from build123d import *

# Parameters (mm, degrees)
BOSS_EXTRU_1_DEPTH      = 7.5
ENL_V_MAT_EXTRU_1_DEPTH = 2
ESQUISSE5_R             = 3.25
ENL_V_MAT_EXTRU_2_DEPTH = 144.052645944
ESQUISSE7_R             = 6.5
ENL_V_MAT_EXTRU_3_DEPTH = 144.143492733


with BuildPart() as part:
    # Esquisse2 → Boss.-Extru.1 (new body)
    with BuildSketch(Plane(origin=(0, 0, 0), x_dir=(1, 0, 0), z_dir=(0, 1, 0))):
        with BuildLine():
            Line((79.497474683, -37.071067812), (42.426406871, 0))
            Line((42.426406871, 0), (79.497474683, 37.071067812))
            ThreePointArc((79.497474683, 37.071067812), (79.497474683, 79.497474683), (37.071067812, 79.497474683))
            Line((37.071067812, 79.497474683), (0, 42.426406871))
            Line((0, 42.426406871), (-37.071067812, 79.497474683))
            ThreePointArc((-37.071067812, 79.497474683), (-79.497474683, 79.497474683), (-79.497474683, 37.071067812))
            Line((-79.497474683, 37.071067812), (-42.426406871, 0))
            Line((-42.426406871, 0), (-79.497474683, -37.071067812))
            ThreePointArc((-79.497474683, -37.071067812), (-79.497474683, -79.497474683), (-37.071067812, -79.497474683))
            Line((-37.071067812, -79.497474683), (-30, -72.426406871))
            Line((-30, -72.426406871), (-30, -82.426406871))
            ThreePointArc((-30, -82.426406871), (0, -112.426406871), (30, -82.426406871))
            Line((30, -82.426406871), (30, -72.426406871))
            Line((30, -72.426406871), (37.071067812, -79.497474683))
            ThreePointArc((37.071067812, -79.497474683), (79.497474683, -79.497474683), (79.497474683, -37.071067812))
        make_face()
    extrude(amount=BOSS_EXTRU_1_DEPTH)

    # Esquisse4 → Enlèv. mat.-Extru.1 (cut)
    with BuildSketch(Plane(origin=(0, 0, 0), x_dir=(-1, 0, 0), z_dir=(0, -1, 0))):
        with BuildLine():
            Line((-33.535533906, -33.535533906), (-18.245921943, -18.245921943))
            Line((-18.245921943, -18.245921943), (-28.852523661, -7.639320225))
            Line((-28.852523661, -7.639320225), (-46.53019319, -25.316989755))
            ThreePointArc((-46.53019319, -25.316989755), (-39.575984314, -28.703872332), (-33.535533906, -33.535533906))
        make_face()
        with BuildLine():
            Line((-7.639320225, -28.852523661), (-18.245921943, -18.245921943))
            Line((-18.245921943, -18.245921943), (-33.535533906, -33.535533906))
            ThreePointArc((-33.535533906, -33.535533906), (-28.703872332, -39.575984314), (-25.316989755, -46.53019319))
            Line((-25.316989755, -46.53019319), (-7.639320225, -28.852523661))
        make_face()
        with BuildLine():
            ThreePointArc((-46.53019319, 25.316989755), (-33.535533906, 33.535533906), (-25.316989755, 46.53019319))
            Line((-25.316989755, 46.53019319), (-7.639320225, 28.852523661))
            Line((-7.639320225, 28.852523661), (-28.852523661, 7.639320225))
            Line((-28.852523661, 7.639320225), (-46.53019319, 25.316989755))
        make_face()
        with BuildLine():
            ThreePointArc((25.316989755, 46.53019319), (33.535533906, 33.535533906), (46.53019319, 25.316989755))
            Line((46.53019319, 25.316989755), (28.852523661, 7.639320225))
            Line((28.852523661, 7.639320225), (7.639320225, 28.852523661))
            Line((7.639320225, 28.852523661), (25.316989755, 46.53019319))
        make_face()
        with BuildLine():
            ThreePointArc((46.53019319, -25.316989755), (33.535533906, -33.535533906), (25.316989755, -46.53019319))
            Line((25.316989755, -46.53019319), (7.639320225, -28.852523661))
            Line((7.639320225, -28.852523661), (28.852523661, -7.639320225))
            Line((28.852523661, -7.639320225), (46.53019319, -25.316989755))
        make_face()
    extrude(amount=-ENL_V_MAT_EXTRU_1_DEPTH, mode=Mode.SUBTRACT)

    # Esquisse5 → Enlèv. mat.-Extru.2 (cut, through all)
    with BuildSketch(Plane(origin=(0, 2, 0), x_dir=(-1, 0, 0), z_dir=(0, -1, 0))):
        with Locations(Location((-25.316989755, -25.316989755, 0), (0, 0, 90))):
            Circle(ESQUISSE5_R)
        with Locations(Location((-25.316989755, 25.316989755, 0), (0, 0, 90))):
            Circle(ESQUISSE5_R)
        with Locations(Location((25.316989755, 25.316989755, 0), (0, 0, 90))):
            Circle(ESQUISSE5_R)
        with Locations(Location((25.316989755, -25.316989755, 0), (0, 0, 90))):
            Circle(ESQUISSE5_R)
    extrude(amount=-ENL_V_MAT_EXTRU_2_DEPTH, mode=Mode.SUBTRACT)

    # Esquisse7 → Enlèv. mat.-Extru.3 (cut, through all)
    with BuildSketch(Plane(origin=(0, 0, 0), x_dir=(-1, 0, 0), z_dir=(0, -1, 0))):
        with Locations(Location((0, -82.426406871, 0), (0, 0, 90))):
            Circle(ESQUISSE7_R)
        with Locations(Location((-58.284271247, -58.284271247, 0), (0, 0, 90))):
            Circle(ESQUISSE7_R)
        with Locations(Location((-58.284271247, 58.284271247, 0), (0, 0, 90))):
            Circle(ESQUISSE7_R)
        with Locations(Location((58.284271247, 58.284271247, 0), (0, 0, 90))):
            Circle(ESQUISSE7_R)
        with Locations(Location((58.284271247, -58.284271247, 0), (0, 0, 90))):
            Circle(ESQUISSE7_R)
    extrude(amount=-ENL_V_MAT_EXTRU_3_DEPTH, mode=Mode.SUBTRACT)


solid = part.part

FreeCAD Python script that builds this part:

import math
import FreeCAD as App
import Part
import Sketcher

V = App.Vector

doc = App.newDocument("Part")
body = doc.addObject("PartDesign::Body", "Body")

# Sketch on XZ plane
sketch1 = body.newObject("Sketcher::SketchObject", "Sketch")
sketch1.AttachmentSupport = (doc.getObject("XZ_Plane"), [""])
sketch1.MapMode = "FlatFace"
sketch1.addGeometry(Part.LineSegment(V(79.497475, 37.071068, 0), V(42.426407, 0, 0)), False)
sketch1.addGeometry(Part.LineSegment(V(42.426407, 0, 0), V(79.497475, -37.071068, 0)), False)
sketch1.addGeometry(Part.ArcOfCircle(Part.Circle(V(58.284271, -58.284271, 0), V(0, 0, 1), 30), math.radians(-135), math.radians(45)), False)
sketch1.addGeometry(Part.LineSegment(V(37.071068, -79.497475, 0), V(0, -42.426407, 0)), False)
sketch1.addGeometry(Part.LineSegment(V(0, -42.426407, 0), V(-37.071068, -79.497475, 0)), False)
sketch1.addGeometry(Part.ArcOfCircle(Part.Circle(V(-58.284271, -58.284271, 0), V(0, 0, 1), 30), math.radians(135), math.radians(315)), False)
sketch1.addGeometry(Part.LineSegment(V(-79.497475, -37.071068, 0), V(-42.426407, 0, 0)), False)
sketch1.addGeometry(Part.LineSegment(V(-42.426407, 0, 0), V(-79.497475, 37.071068, 0)), False)
sketch1.addGeometry(Part.ArcOfCircle(Part.Circle(V(-58.284271, 58.284271, 0), V(0, 0, 1), 30), math.radians(45), math.radians(225)), False)
sketch1.addGeometry(Part.LineSegment(V(-37.071068, 79.497475, 0), V(-30, 72.426407, 0)), False)
sketch1.addGeometry(Part.LineSegment(V(-30, 72.426407, 0), V(-30, 82.426407, 0)), False)
sketch1.addGeometry(Part.ArcOfCircle(Part.Circle(V(0, 82.426407, 0), V(0, 0, 1), 30), math.radians(0), math.radians(180)), False)
sketch1.addGeometry(Part.LineSegment(V(30, 82.426407, 0), V(30, 72.426407, 0)), False)
sketch1.addGeometry(Part.LineSegment(V(30, 72.426407, 0), V(37.071068, 79.497475, 0)), False)
sketch1.addGeometry(Part.ArcOfCircle(Part.Circle(V(58.284271, 58.284271, 0), V(0, 0, 1), 30), math.radians(-45), math.radians(135)), False)
sketch1.addConstraint(Sketcher.Constraint("Coincident", 0, 2, 1, 1))
sketch1.addConstraint(Sketcher.Constraint("Tangent", 1, 2, 2, 2))
sketch1.addConstraint(Sketcher.Constraint("Tangent", 2, 1, 3, 1))
sketch1.addConstraint(Sketcher.Constraint("Coincident", 3, 2, 4, 1))
sketch1.addConstraint(Sketcher.Constraint("Tangent", 4, 2, 5, 2))
sketch1.addConstraint(Sketcher.Constraint("Tangent", 5, 1, 6, 1))
sketch1.addConstraint(Sketcher.Constraint("Coincident", 6, 2, 7, 1))
sketch1.addConstraint(Sketcher.Constraint("Tangent", 7, 2, 8, 2))
sketch1.addConstraint(Sketcher.Constraint("Tangent", 8, 1, 9, 1))
sketch1.addConstraint(Sketcher.Constraint("Coincident", 9, 2, 10, 1))
sketch1.addConstraint(Sketcher.Constraint("Tangent", 10, 2, 11, 2))
sketch1.addConstraint(Sketcher.Constraint("Tangent", 11, 1, 12, 1))
sketch1.addConstraint(Sketcher.Constraint("Coincident", 12, 2, 13, 1))
sketch1.addConstraint(Sketcher.Constraint("Tangent", 13, 2, 14, 2))
sketch1.addConstraint(Sketcher.Constraint("Tangent", 14, 1, 0, 1))
sketch1.addConstraint(Sketcher.Constraint("Vertical", 10))
sketch1.addConstraint(Sketcher.Constraint("Vertical", 12))
sketch1.addConstraint(Sketcher.Constraint("Equal", 2, 5))
sketch1.addConstraint(Sketcher.Constraint("Equal", 5, 8))
sketch1.addConstraint(Sketcher.Constraint("Equal", 8, 11))
sketch1.addConstraint(Sketcher.Constraint("Equal", 11, 14))
sketch1.addConstraint(Sketcher.Constraint("Symmetric", 2, 3, 8, 3, -1, 1))
sketch1.addConstraint(Sketcher.Constraint("Symmetric", 5, 3, 14, 3, -1, 1))
sketch1.addConstraint(Sketcher.Constraint("Symmetric", 0, 2, 6, 2, -1, 1))
sketch1.addConstraint(Sketcher.Constraint("Symmetric", 2, 3, 5, 3, -2))
sketch1.addConstraint(Sketcher.Constraint("Symmetric", 9, 2, 12, 2, -2))
sketch1.addConstraint(Sketcher.Constraint("PointOnObject", 0, 2, -1))
sketch1.addConstraint(Sketcher.Constraint("PointOnObject", 3, 2, -2))
sketch1.addConstraint(Sketcher.Constraint("Perpendicular", 0, 1))
sketch1.addConstraint(Sketcher.Constraint("Parallel", 1, 3))
sketch1.addConstraint(Sketcher.Constraint("Parallel", 7, 9))
sketch1.addConstraint(Sketcher.Constraint("Equal", 1, 3))
sketch1.addConstraint(Sketcher.Constraint("Radius", 2, 30.0))
sketch1.addConstraint(Sketcher.Constraint("DistanceY", 10, 1, 10, 2, 10.0))
sketch1.addConstraint(Sketcher.Constraint("Distance", 9, 10.0))
pad1 = body.newObject("PartDesign::Pad", "Pad")
pad1.Profile = sketch1
pad1.Length = 7.5
pad1.Reversed = True

# Sketch on XZ plane
sketch2 = body.newObject("Sketcher::SketchObject", "Sketch001")
sketch2.AttachmentSupport = (doc.getObject("XZ_Plane"), [""])
sketch2.MapMode = "FlatFace"
sketch2.addGeometry(Part.LineSegment(V(28.852524, 7.63932, 0), V(46.530193, 25.31699, 0)), False)
sketch2.addGeometry(Part.ArcOfCircle(Part.Circle(V(58.284271, 58.284271, 0), V(0, 0, 1), 35), math.radians(-135), math.radians(-109.623066)), False)
sketch2.addGeometry(Part.ArcOfCircle(Part.Circle(V(58.284271, 58.284271, 0), V(0, 0, 1), 35), math.radians(-160.376934), math.radians(-135)), False)
sketch2.addGeometry(Part.LineSegment(V(25.31699, 46.530193, 0), V(7.63932, 28.852524, 0)), False)
sketch2.addGeometry(Part.LineSegment(V(7.63932, 28.852524, 0), V(28.852524, 7.63932, 0)), False)
sketch2.addGeometry(Part.ArcOfCircle(Part.Circle(V(58.284271, -58.284271, 0), V(0, 0, 1), 35), math.radians(109.623066), math.radians(160.376934)), False)
sketch2.addGeometry(Part.LineSegment(V(46.530193, -25.31699, 0), V(28.852524, -7.63932, 0)), False)
sketch2.addGeometry(Part.LineSegment(V(28.852524, -7.63932, 0), V(7.63932, -28.852524, 0)), False)
sketch2.addGeometry(Part.LineSegment(V(7.63932, -28.852524, 0), V(25.31699, -46.530193, 0)), False)
sketch2.addGeometry(Part.ArcOfCircle(Part.Circle(V(-58.284271, -58.284271, 0), V(0, 0, 1), 35), math.radians(19.623066), math.radians(70.376934)), False)
sketch2.addGeometry(Part.LineSegment(V(-25.31699, -46.530193, 0), V(-7.63932, -28.852524, 0)), False)
sketch2.addGeometry(Part.LineSegment(V(-7.63932, -28.852524, 0), V(-28.852524, -7.63932, 0)), False)
sketch2.addGeometry(Part.LineSegment(V(-28.852524, -7.63932, 0), V(-46.530193, -25.31699, 0)), False)
sketch2.addGeometry(Part.ArcOfCircle(Part.Circle(V(-58.284271, 58.284271, 0), V(0, 0, 1), 35), math.radians(-70.376934), math.radians(-19.623066)), False)
sketch2.addGeometry(Part.LineSegment(V(-46.530193, 25.31699, 0), V(-28.852524, 7.63932, 0)), False)
sketch2.addGeometry(Part.LineSegment(V(-28.852524, 7.63932, 0), V(-7.63932, 28.852524, 0)), False)
sketch2.addGeometry(Part.LineSegment(V(-7.63932, 28.852524, 0), V(-25.31699, 46.530193, 0)), False)
sketch2.addConstraint(Sketcher.Constraint("Coincident", 0, 2, 1, 2))
sketch2.addConstraint(Sketcher.Constraint("Tangent", 1, 1, 2, 2))
sketch2.addConstraint(Sketcher.Constraint("Coincident", 2, 1, 3, 1))
sketch2.addConstraint(Sketcher.Constraint("Coincident", 3, 2, 4, 1))
sketch2.addConstraint(Sketcher.Constraint("Coincident", 4, 2, 0, 1))
sketch2.addConstraint(Sketcher.Constraint("Coincident", 5, 1, 6, 1))
sketch2.addConstraint(Sketcher.Constraint("Coincident", 6, 2, 7, 1))
sketch2.addConstraint(Sketcher.Constraint("Coincident", 7, 2, 8, 1))
sketch2.addConstraint(Sketcher.Constraint("Coincident", 8, 2, 5, 2))
sketch2.addConstraint(Sketcher.Constraint("Coincident", 9, 1, 10, 1))
sketch2.addConstraint(Sketcher.Constraint("Coincident", 10, 2, 11, 1))
sketch2.addConstraint(Sketcher.Constraint("Coincident", 11, 2, 12, 1))
sketch2.addConstraint(Sketcher.Constraint("Coincident", 12, 2, 9, 2))
sketch2.addConstraint(Sketcher.Constraint("Coincident", 13, 1, 14, 1))
sketch2.addConstraint(Sketcher.Constraint("Coincident", 14, 2, 15, 1))
sketch2.addConstraint(Sketcher.Constraint("Coincident", 15, 2, 16, 1))
sketch2.addConstraint(Sketcher.Constraint("Coincident", 16, 2, 13, 2))
sketch2.addConstraint(Sketcher.Constraint("Equal", 1, 2))
sketch2.addConstraint(Sketcher.Constraint("Equal", 2, 5))
sketch2.addConstraint(Sketcher.Constraint("Equal", 5, 9))
sketch2.addConstraint(Sketcher.Constraint("Equal", 9, 13))
sketch2.addConstraint(Sketcher.Constraint("Symmetric", 1, 3, 9, 3, -1, 1))
sketch2.addConstraint(Sketcher.Constraint("Symmetric", 5, 3, 13, 3, -1, 1))
sketch2.addConstraint(Sketcher.Constraint("Symmetric", 3, 2, 10, 2, -1, 1))
sketch2.addConstraint(Sketcher.Constraint("Symmetric", 4, 2, 11, 2, -1, 1))
sketch2.addConstraint(Sketcher.Constraint("Symmetric", 6, 2, 14, 2, -1, 1))
sketch2.addConstraint(Sketcher.Constraint("Symmetric", 7, 2, 15, 2, -1, 1))
sketch2.addConstraint(Sketcher.Constraint("Symmetric", 5, 3, 9, 3, -2))
sketch2.addConstraint(Sketcher.Constraint("Symmetric", 7, 2, 10, 2, -2))
sketch2.addConstraint(Sketcher.Constraint("Symmetric", 6, 2, 11, 2, -2))
sketch2.addConstraint(Sketcher.Constraint("Parallel", 0, 3))
sketch2.addConstraint(Sketcher.Constraint("Perpendicular", 3, 4))
sketch2.addConstraint(Sketcher.Constraint("Parallel", 4, 6))
sketch2.addConstraint(Sketcher.Constraint("Perpendicular", 6, 7))
sketch2.addConstraint(Sketcher.Constraint("Perpendicular", 7, 8))
sketch2.addConstraint(Sketcher.Constraint("Perpendicular", 8, 10))
sketch2.addConstraint(Sketcher.Constraint("Perpendicular", 11, 12))
sketch2.addConstraint(Sketcher.Constraint("Perpendicular", 12, 14))
sketch2.addConstraint(Sketcher.Constraint("Perpendicular", 15, 16))
sketch2.addConstraint(Sketcher.Constraint("Equal", 0, 3))
sketch2.addConstraint(Sketcher.Constraint("Radius", 1, 35.0))
sketch2.addConstraint(Sketcher.Constraint("Distance", 0, 25.0))
sketch2.addConstraint(Sketcher.Constraint("Distance", 4, 30.0))
sketch2.addConstraint(Sketcher.Constraint("DistanceX", -1, 1, 1, 3, 58.284271))
sketch2.addConstraint(Sketcher.Constraint("DistanceY", -1, 1, 1, 3, 58.284271))
sketch2.addConstraint(Sketcher.Constraint("DistanceX", 1, 1, 0, 2, 12.994659))
pocket1 = body.newObject("PartDesign::Pocket", "Pocket")
pocket1.Profile = sketch2
pocket1.Length = 2

# Sketch on XZ plane
sketch3 = body.newObject("Sketcher::SketchObject", "Sketch002")
sketch3.AttachmentSupport = (doc.getObject("XZ_Plane"), [""])
sketch3.MapMode = "FlatFace"
sketch3.AttachmentOffset = App.Placement(V(0, 0, -2), App.Rotation())
sketch3.addGeometry(Part.Circle(V(25.31699, 25.31699, 0), V(0, 0, 1), 3.25), False)
sketch3.addGeometry(Part.Circle(V(25.31699, -25.31699, 0), V(0, 0, 1), 3.25), False)
sketch3.addGeometry(Part.Circle(V(-25.31699, -25.31699, 0), V(0, 0, 1), 3.25), False)
sketch3.addGeometry(Part.Circle(V(-25.31699, 25.31699, 0), V(0, 0, 1), 3.25), False)
sketch3.addConstraint(Sketcher.Constraint("Equal", 0, 1))
sketch3.addConstraint(Sketcher.Constraint("Equal", 1, 2))
sketch3.addConstraint(Sketcher.Constraint("Equal", 2, 3))
sketch3.addConstraint(Sketcher.Constraint("Symmetric", 0, 3, 2, 3, -1, 1))
sketch3.addConstraint(Sketcher.Constraint("Symmetric", 1, 3, 3, 3, -1, 1))
sketch3.addConstraint(Sketcher.Constraint("Symmetric", 1, 3, 2, 3, -2))
sketch3.addConstraint(Sketcher.Constraint("Diameter", 0, 6.5))
sketch3.addConstraint(Sketcher.Constraint("DistanceX", -1, 1, 0, 3, 25.31699))
sketch3.addConstraint(Sketcher.Constraint("DistanceY", -1, 1, 0, 3, 25.31699))
pocket2 = body.newObject("PartDesign::Pocket", "Pocket001")
pocket2.Profile = sketch3
pocket2.Type = "ThroughAll"

# Sketch on XZ plane
sketch4 = body.newObject("Sketcher::SketchObject", "Sketch003")
sketch4.AttachmentSupport = (doc.getObject("XZ_Plane"), [""])
sketch4.MapMode = "FlatFace"
sketch4.addGeometry(Part.Circle(V(0, 82.426407, 0), V(0, 0, 1), 6.5), False)
sketch4.addGeometry(Part.Circle(V(58.284271, 58.284271, 0), V(0, 0, 1), 6.5), False)
sketch4.addGeometry(Part.Circle(V(58.284271, -58.284271, 0), V(0, 0, 1), 6.5), False)
sketch4.addGeometry(Part.Circle(V(-58.284271, -58.284271, 0), V(0, 0, 1), 6.5), False)
sketch4.addGeometry(Part.Circle(V(-58.284271, 58.284271, 0), V(0, 0, 1), 6.5), False)
sketch4.addConstraint(Sketcher.Constraint("Equal", 0, 1))
sketch4.addConstraint(Sketcher.Constraint("Equal", 1, 2))
sketch4.addConstraint(Sketcher.Constraint("Equal", 2, 3))
sketch4.addConstraint(Sketcher.Constraint("Equal", 3, 4))
sketch4.addConstraint(Sketcher.Constraint("Symmetric", 1, 3, 3, 3, -1, 1))
sketch4.addConstraint(Sketcher.Constraint("Symmetric", 2, 3, 4, 3, -1, 1))
sketch4.addConstraint(Sketcher.Constraint("Symmetric", 2, 3, 3, 3, -2))
sketch4.addConstraint(Sketcher.Constraint("PointOnObject", 0, 3, -2))
sketch4.addConstraint(Sketcher.Constraint("Diameter", 0, 13.0))
sketch4.addConstraint(Sketcher.Constraint("DistanceX", -1, 1, 1, 3, 58.284271))
sketch4.addConstraint(Sketcher.Constraint("DistanceY", -1, 1, 1, 3, 58.284271))
sketch4.addConstraint(Sketcher.Constraint("DistanceY", 2, 3, 0, 3, 140.710678))
pocket3 = body.newObject("PartDesign::Pocket", "Pocket002")
pocket3.Profile = sketch4
pocket3.Type = "ThroughAll"

doc.recompute()
